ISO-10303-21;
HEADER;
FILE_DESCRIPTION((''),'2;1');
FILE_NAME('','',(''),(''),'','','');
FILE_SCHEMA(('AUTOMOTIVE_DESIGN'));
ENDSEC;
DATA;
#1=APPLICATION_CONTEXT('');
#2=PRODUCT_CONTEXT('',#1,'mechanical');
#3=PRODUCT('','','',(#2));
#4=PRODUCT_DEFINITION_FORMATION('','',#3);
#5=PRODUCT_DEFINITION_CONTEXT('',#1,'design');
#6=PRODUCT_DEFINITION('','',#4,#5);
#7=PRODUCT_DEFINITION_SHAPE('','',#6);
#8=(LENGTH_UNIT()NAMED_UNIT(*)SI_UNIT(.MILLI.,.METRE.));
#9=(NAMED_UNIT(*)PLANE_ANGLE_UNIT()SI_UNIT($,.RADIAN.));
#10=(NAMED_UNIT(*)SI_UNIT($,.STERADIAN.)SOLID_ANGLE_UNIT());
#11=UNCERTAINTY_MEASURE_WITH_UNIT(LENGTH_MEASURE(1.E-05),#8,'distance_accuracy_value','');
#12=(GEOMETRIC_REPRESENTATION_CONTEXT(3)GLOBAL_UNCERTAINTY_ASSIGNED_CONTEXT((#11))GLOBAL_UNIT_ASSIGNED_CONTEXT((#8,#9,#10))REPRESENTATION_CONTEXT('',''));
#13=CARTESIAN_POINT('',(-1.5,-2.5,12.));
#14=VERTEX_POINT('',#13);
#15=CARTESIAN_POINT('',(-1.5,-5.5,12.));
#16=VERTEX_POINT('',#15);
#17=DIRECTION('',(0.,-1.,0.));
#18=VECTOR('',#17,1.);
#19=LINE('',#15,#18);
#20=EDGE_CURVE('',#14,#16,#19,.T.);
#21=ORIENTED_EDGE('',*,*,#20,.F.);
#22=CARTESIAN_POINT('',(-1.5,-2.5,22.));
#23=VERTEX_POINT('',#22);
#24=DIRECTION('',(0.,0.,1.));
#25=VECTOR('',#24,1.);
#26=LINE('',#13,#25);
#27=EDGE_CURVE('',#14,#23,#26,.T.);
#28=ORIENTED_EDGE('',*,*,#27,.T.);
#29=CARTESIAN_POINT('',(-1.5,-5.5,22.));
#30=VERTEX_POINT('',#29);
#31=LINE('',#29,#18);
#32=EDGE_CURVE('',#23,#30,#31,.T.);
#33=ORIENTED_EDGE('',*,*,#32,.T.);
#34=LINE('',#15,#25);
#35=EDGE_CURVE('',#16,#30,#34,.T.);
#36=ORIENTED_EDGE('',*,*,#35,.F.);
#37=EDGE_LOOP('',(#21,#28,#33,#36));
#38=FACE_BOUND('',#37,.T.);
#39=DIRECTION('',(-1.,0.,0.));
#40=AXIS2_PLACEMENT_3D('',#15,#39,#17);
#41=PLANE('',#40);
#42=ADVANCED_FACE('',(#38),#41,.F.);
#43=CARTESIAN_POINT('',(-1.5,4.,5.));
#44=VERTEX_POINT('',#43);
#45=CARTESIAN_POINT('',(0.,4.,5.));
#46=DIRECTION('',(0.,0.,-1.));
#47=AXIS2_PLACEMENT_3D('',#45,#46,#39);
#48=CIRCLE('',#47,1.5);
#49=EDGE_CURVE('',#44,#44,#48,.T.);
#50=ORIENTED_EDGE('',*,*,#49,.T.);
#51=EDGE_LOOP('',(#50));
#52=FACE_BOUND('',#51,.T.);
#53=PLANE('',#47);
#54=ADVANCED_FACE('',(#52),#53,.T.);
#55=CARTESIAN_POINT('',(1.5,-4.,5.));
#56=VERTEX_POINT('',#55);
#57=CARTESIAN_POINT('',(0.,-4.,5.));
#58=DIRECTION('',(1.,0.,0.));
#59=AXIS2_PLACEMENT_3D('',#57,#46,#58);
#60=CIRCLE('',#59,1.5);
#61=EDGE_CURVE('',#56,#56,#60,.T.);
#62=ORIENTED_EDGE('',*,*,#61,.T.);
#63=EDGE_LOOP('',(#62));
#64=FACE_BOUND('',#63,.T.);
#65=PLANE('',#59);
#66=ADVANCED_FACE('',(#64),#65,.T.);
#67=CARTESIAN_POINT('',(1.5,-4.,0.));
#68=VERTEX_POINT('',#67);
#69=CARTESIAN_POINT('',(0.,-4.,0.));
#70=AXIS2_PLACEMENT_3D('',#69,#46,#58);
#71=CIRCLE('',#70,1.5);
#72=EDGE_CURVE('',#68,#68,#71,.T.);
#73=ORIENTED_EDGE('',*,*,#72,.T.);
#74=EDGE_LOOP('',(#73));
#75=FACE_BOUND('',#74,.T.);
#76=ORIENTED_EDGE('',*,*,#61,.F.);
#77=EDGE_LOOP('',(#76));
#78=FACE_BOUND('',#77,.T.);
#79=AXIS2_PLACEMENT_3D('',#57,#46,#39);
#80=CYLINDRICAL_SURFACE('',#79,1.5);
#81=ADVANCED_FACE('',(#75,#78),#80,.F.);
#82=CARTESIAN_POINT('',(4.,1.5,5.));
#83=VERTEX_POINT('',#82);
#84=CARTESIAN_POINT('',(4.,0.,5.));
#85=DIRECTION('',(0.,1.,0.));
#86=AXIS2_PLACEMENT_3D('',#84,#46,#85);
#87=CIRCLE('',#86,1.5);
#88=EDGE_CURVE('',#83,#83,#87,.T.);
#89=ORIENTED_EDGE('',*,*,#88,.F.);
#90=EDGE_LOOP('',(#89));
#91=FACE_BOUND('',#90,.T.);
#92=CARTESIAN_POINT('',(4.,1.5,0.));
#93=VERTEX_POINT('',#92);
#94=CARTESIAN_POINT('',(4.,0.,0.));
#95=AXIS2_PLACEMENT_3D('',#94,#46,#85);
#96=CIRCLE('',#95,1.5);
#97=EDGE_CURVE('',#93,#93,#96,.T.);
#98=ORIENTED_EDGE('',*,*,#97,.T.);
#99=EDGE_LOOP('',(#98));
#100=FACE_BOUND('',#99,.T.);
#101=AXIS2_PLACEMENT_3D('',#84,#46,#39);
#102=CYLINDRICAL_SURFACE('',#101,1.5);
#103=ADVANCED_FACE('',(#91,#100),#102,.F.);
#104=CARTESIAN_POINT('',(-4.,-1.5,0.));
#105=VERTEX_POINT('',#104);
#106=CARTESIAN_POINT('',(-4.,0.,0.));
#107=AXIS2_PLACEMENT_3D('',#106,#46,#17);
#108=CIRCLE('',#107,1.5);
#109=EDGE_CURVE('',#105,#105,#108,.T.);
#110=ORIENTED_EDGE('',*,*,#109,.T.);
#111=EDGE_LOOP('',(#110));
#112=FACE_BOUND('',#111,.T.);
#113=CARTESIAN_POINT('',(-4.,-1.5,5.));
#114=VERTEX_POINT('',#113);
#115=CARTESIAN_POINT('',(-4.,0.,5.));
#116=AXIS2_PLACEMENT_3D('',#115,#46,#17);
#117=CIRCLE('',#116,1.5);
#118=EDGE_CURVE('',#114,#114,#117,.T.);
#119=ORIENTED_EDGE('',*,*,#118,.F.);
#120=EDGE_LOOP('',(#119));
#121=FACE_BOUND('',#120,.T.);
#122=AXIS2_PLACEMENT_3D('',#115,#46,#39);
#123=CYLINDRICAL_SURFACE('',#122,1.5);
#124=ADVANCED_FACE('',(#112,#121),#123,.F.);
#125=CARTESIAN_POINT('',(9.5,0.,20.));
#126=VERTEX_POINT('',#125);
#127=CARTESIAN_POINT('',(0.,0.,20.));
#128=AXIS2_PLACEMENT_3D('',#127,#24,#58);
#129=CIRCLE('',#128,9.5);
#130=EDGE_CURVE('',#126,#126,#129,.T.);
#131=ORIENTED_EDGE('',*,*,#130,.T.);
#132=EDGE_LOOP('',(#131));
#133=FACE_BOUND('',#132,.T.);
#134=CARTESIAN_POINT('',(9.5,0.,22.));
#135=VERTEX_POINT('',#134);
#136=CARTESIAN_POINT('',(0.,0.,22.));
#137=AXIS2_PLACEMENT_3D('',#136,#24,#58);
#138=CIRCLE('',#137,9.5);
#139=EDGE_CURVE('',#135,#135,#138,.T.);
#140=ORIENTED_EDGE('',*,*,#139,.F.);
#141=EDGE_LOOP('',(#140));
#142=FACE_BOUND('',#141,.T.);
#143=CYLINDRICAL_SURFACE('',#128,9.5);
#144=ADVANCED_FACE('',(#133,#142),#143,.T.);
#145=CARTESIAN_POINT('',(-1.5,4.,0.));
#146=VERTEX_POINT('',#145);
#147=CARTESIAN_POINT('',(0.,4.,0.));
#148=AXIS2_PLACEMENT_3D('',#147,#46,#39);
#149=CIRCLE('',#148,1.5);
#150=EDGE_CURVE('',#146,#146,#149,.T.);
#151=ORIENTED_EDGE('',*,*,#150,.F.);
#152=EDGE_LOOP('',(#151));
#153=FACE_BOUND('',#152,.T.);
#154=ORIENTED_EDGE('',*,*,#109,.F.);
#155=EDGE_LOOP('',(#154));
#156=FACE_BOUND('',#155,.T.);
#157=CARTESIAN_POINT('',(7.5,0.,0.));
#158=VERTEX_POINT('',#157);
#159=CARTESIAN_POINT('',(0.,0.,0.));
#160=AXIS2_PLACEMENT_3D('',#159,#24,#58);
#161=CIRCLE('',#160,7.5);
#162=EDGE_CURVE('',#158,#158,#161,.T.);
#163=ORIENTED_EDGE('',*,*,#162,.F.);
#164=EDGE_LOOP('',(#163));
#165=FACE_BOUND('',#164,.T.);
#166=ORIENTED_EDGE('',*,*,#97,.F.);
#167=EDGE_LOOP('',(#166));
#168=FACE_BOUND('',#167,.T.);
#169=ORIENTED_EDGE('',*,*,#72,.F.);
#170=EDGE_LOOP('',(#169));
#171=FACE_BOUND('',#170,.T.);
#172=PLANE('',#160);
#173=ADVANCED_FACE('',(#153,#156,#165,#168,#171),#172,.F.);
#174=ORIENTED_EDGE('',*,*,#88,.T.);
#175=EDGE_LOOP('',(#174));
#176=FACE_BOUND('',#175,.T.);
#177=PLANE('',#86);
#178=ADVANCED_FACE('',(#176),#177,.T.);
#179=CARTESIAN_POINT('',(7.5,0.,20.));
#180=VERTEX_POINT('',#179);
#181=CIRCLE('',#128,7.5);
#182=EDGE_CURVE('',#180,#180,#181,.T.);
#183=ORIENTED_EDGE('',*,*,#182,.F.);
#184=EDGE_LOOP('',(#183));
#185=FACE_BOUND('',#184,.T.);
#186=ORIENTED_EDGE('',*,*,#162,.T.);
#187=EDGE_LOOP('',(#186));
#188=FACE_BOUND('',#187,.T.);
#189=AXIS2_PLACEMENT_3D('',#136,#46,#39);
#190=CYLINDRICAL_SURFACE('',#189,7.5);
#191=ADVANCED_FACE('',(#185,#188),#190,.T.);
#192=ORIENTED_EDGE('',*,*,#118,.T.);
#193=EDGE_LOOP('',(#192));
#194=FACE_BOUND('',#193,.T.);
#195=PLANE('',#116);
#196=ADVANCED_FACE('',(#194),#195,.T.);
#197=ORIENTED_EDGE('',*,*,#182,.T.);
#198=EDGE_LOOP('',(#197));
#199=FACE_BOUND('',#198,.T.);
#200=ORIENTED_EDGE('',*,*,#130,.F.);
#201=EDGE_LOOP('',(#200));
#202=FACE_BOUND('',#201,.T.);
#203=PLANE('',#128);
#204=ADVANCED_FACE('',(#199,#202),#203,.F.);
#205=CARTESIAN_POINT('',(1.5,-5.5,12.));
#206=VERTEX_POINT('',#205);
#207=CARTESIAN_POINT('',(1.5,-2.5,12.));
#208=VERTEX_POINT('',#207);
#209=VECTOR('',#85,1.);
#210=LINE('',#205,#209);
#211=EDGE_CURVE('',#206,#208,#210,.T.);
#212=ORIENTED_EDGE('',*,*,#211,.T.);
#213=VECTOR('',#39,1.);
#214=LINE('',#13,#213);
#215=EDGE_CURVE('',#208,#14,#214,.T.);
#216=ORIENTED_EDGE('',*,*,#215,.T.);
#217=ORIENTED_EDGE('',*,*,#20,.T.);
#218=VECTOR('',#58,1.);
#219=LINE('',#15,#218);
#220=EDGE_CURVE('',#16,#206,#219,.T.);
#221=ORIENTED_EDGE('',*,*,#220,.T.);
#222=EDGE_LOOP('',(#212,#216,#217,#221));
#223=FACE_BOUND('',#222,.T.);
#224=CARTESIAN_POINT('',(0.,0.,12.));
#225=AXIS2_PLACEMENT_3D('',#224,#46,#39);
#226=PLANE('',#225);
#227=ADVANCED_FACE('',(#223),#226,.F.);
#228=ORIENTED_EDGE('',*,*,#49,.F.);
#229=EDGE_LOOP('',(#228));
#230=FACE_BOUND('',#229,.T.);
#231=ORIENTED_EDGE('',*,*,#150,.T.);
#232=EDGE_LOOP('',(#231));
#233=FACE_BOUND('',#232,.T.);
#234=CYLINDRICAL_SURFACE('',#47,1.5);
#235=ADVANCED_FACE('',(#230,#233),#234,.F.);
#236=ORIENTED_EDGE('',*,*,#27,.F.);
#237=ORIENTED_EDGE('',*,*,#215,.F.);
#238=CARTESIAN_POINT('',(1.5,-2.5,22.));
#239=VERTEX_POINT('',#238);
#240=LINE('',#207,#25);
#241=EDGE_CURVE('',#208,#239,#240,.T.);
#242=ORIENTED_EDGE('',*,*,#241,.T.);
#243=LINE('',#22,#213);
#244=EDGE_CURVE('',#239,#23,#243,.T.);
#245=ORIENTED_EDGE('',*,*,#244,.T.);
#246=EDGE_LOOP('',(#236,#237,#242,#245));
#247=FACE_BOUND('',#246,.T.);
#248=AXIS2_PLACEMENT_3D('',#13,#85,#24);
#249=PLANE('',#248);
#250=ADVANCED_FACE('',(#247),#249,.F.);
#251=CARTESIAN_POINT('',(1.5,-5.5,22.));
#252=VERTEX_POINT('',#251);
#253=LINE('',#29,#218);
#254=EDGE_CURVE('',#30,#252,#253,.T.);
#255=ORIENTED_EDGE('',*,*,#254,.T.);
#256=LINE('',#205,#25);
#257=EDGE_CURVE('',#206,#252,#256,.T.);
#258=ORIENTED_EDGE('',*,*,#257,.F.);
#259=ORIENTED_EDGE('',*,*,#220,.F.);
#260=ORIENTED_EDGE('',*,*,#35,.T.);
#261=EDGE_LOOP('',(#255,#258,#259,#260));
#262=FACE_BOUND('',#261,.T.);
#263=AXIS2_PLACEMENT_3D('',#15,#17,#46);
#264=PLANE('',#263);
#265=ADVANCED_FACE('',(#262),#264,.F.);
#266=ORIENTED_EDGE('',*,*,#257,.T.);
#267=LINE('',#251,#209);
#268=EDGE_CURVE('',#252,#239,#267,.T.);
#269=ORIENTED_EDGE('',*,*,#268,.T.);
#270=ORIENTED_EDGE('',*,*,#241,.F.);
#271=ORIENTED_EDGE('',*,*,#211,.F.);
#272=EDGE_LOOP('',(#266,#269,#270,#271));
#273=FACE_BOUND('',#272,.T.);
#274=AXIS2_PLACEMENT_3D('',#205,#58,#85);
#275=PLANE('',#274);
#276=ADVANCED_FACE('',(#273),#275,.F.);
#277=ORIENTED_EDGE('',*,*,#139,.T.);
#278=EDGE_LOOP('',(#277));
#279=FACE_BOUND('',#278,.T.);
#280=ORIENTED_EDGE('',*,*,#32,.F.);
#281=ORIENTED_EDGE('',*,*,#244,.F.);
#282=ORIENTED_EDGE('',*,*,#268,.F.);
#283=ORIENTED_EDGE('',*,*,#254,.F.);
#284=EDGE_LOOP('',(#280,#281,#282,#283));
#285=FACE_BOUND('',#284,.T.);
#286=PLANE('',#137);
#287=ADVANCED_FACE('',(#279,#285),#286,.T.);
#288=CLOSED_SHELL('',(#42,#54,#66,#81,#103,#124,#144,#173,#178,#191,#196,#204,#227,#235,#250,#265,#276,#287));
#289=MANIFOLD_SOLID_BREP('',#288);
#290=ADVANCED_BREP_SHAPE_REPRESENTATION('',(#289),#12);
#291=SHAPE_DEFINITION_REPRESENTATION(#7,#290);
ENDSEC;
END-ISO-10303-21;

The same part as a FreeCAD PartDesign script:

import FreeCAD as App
import Part
import Sketcher


def add_polygon(sketch, points):
    """Adds a closed chain of lines whose ends are joined by coincident constraints."""
    first, n = sketch.GeometryCount, len(points)
    for a, b in zip(points, points[1:] + points[:1]):
        sketch.addGeometry(Part.LineSegment(App.Vector(*a, 0), App.Vector(*b, 0)), False)
    for i in range(n):
        sketch.addConstraint(Sketcher.Constraint("Coincident", first + i, 2, first + (i + 1) % n, 1))

doc = App.newDocument("Part")
body = doc.addObject("PartDesign::Body", "Body")

# Sketch on XY plane
sketch1 = body.newObject("Sketcher::SketchObject", "Sketch")
sketch1.AttachmentSupport = (doc.getObject("XY_Plane"), [""])
sketch1.MapMode = "FlatFace"
sketch1.addGeometry(Part.Circle(App.Vector(0, 0, 0), App.Vector(0, 0, 1), 8), False)
sketch1.addConstraint(Sketcher.Constraint("Coincident", 0, 3, -1, 1))
sketch1.addConstraint(Sketcher.Constraint("Diameter", 0, 15.0))
pad1 = body.newObject("PartDesign::Pad", "Pad")
pad1.Profile = sketch1
pad1.Length = 22

# Sketch on XY plane
sketch2 = body.newObject("Sketcher::SketchObject", "Sketch001")
sketch2.AttachmentSupport = (doc.getObject("XY_Plane"), [""])
sketch2.MapMode = "FlatFace"
sketch2.AttachmentOffset = App.Placement(App.Vector(0, 0, 22), App.Rotation())
add_polygon(sketch2, [(-1.5, -2.5), (-1.5, -5.5), (1.5, -5.5), (1.5, -2.5)])  # lines 0-3
sketch2.addConstraint(Sketcher.Constraint("Vertical", 0))
sketch2.addConstraint(Sketcher.Constraint("Horizontal", 1))
sketch2.addConstraint(Sketcher.Constraint("Vertical", 2))
sketch2.addConstraint(Sketcher.Constraint("Horizontal", 3))
sketch2.addConstraint(Sketcher.Constraint("Equal", 3, 0))
sketch2.addConstraint(Sketcher.Constraint("DistanceX", 1, 1, 1, 2, 3.0))
sketch2.addConstraint(Sketcher.Constraint("DistanceX", 0, 2, -1, 1, 1.5))
sketch2.addConstraint(Sketcher.Constraint("DistanceY", 0, 2, -1, 1, 5.5))
pocket1 = body.newObject("PartDesign::Pocket", "Pocket")
pocket1.Profile = sketch2
pocket1.Length = 10

# Sketch on XY plane
sketch3 = body.newObject("Sketcher::SketchObject", "Sketch002")
sketch3.AttachmentSupport = (doc.getObject("XY_Plane"), [""])
sketch3.MapMode = "FlatFace"
sketch3.addGeometry(Part.Circle(App.Vector(0, 4, 0), App.Vector(0, 0, 1), 1.5), False)
sketch3.addConstraint(Sketcher.Constraint("PointOnObject", 0, 3, -2))
sketch3.addConstraint(Sketcher.Constraint("Diameter", 0, 3.0))
sketch3.addConstraint(Sketcher.Constraint("DistanceY", -1, 1, 0, 3, 4.0))
pocket2 = body.newObject("PartDesign::Pocket", "Pocket001")
pocket2.Profile = sketch3
pocket2.Length = 5
pocket2.Reversed = True
doc.recompute()

polarpattern = body.newObject("PartDesign::PolarPattern", "PolarPattern")
polarpattern.Originals = [pocket2]
polarpattern.Axis = (doc.getObject("Z_Axis"), [""])
polarpattern.Angle = 360
polarpattern.Occurrences = 4
body.Tip = polarpattern

# Sketch on XY plane
sketch4 = body.newObject("Sketcher::SketchObject", "Sketch003")
sketch4.AttachmentSupport = (doc.getObject("XY_Plane"), [""])
sketch4.MapMode = "FlatFace"
sketch4.AttachmentOffset = App.Placement(App.Vector(0, 0, 20), App.Rotation())
sketch4.addGeometry(Part.Circle(App.Vector(0, 0, 0), App.Vector(0, 0, 1), 10), False)
sketch4.addGeometry(Part.Circle(App.Vector(0, 0, 0), App.Vector(0, 0, 1), 8), False)
sketch4.addConstraint(Sketcher.Constraint("Coincident", 0, 3, -1, 1))
sketch4.addConstraint(Sketcher.Constraint("Coincident", 1, 3, -1, 1))
sketch4.addConstraint(Sketcher.Constraint("Diameter", 0, 19.0))
sketch4.addConstraint(Sketcher.Constraint("Diameter", 1, 15.0))
pad2 = body.newObject("PartDesign::Pad", "Pad001")
pad2.Profile = sketch4
pad2.Length = 2

doc.recompute()
